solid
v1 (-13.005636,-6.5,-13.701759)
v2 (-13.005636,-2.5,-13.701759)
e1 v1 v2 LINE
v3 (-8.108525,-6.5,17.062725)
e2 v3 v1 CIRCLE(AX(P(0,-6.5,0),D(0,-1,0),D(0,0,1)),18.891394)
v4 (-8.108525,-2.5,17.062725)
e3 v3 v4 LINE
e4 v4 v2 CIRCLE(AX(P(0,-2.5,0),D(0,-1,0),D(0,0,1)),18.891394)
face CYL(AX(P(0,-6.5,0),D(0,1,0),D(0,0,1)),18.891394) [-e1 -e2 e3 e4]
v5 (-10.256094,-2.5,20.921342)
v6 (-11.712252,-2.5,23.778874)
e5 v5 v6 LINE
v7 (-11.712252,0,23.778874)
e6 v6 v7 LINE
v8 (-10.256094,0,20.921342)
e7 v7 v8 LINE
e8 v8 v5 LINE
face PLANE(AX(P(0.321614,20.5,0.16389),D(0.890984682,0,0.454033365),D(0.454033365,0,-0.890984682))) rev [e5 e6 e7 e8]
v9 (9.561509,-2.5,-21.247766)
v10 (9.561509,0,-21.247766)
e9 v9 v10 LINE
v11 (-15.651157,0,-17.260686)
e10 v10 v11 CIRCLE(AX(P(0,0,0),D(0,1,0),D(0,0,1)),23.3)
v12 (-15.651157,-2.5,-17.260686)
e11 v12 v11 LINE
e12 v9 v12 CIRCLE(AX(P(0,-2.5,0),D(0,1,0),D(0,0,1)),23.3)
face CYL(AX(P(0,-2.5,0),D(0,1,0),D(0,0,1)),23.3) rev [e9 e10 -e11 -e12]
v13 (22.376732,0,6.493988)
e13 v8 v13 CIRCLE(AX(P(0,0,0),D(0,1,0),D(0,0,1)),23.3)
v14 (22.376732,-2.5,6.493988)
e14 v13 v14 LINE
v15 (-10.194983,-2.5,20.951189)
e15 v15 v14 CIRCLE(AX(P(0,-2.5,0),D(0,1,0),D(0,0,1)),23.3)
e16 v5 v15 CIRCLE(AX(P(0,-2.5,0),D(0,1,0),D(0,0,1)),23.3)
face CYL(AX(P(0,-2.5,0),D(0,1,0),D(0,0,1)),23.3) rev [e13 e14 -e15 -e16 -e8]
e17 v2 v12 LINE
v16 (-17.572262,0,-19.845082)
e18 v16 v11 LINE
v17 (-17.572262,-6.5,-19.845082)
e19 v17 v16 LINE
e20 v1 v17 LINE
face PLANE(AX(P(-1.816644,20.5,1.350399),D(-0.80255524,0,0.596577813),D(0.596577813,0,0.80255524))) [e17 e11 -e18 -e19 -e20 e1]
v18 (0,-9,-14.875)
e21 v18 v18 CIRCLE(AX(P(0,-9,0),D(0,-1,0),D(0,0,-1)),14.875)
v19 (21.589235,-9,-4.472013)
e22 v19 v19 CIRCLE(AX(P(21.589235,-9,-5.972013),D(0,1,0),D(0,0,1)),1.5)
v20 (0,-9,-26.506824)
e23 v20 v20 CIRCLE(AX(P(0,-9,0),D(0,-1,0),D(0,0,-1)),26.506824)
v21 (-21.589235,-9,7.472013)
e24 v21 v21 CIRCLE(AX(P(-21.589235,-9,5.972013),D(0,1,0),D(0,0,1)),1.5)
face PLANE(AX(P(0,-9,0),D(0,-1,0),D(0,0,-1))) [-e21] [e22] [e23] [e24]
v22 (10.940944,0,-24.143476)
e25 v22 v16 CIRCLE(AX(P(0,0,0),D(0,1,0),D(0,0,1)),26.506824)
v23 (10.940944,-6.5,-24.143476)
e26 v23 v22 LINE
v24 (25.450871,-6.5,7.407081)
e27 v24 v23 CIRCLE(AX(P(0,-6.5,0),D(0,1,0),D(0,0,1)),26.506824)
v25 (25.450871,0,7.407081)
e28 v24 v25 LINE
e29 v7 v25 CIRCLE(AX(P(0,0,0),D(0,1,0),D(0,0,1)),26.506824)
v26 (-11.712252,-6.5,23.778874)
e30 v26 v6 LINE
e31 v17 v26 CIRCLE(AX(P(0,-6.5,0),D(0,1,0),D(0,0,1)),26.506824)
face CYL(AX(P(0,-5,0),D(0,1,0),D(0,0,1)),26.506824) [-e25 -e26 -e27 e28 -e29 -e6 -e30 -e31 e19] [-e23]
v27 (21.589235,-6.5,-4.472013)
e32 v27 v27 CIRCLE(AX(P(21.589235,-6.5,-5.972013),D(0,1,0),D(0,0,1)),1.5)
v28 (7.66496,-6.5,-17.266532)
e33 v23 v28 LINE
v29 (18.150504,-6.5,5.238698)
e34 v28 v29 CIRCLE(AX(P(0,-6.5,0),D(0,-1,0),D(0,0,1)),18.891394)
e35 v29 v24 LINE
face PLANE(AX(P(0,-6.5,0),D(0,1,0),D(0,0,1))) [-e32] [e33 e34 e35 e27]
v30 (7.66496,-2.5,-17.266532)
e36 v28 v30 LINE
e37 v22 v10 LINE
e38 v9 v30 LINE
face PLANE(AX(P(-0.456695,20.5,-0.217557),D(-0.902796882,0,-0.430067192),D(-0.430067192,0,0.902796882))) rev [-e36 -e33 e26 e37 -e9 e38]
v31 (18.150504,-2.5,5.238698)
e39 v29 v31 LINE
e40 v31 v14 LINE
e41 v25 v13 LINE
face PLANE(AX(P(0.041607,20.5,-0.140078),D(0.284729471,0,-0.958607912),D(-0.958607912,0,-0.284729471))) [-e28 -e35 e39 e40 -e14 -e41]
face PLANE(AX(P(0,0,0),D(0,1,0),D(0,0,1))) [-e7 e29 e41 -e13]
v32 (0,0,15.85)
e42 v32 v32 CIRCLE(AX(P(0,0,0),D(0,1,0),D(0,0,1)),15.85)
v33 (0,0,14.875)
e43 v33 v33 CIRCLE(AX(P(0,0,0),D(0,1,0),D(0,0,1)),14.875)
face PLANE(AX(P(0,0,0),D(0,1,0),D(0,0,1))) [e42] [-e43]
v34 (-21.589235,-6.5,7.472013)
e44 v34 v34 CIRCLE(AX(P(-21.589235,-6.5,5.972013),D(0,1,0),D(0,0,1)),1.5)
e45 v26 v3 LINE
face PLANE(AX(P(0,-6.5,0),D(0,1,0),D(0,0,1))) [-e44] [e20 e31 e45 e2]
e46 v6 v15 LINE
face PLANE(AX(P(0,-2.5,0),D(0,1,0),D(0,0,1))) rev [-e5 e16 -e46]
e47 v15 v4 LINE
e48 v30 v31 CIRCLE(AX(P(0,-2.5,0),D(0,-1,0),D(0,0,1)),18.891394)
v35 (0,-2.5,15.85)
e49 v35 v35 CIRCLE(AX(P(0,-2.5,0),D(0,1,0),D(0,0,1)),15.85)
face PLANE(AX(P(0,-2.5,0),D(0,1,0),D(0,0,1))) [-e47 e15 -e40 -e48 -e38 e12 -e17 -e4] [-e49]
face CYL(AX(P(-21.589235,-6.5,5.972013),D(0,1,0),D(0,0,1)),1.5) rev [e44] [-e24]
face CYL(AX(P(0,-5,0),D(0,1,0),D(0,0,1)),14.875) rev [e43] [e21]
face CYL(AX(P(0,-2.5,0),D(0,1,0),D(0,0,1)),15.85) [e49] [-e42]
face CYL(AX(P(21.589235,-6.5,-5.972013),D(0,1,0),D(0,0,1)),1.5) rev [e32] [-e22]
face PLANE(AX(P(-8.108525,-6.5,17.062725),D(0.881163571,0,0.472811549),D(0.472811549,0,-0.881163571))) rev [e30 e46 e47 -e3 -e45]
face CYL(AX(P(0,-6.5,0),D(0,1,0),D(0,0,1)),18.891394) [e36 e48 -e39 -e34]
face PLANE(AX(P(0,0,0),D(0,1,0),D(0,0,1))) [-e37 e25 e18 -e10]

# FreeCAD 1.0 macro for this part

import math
import FreeCAD as App
import Part
import Sketcher

V = App.Vector
Q = App.Units.Quantity

doc = App.newDocument("Part")
params = doc.addObject("Spreadsheet::Sheet", "Params")
for row, (alias, value) in enumerate([
    ("sketch1_diameter", "29.75 mm"),
    ("pad1_length", "5 mm"),
    ("sketch2_diameter", "46.6 mm"),
    ("sketch2_diameter2", "31.7 mm"),
    ("pocket1_length", "2.5 mm"),
    ("pad2_length", "50 mm"),
    ("pocket2_length", "46 mm"),
    ("sketch5_radius", "23.3 mm"),
    ("pocket3_length", "23 mm"),
    ("pocket4_length", "4 mm"),
    ("sketch7_diameter", "29.75 mm"),
    ("pocket5_length", "10 mm"),
    ("sketch8_diameter", "3 mm"),
    ("hole_diameter", "3 mm"),
], start=1):
    params.set(f"A{row}", alias)
    params.set(f"B{row}", "=" + value)
    params.setAlias(f"B{row}", alias)

body = doc.addObject("PartDesign::Body", "Body")

# Sketch on XZ plane
sketch1 = body.newObject("Sketcher::SketchObject", "Sketch")
sketch1.AttachmentSupport = (doc.getObject("XZ_Plane"), [""])
sketch1.MapMode = "FlatFace"
sketch1.addGeometry([
    Part.Circle(V(0, 0, 0), V(0, 0, 1), 27),
    Part.Circle(V(0, 0, 0), V(0, 0, 1), 15),
], False)
sketch1.addConstraint([
    Sketcher.Constraint("Coincident", 0, 3, -1, 1),
    Sketcher.Constraint("Coincident", 1, 3, -1, 1),
    Sketcher.Constraint("Diameter", 1, Q("29.75 mm")),
    Sketcher.Constraint("Diameter", 0, Q("53.013647 mm")),
])
sketch1.setExpression("Constraints[2]", "Params.sketch1_diameter")
pad1 = body.newObject("PartDesign::Pad", "Pad")
pad1.Profile = sketch1
pad1.setExpression("Length", "Params.pad1_length")

# Sketch on XZ plane
sketch2 = body.newObject("Sketcher::SketchObject", "Sketch001")
sketch2.AttachmentSupport = (doc.getObject("XZ_Plane"), [""])
sketch2.MapMode = "FlatFace"
sketch2.addGeometry([
    Part.Circle(V(0, 0, 0), V(0, 0, 1), 23),
    Part.Circle(V(0, 0, 0), V(0, 0, 1), 16),
], False)
sketch2.addConstraint([
    Sketcher.Constraint("Coincident", 0, 3, -1, 1),
    Sketcher.Constraint("Coincident", 1, 3, -1, 1),
    Sketcher.Constraint("Diameter", 0, Q("46.6 mm")),
    Sketcher.Constraint("Diameter", 1, Q("31.7 mm")),
])
sketch2.setExpression("Constraints[2]", "Params.sketch2_diameter")
sketch2.setExpression("Constraints[3]", "Params.sketch2_diameter2")
pocket1 = body.newObject("PartDesign::Pocket", "Pocket")
pocket1.Profile = sketch2
pocket1.setExpression("Length", "Params.pocket1_length")
pocket1.Reversed = True

# Sketch on XZ plane
sketch3 = body.newObject("Sketcher::SketchObject", "Sketch002")
sketch3.AttachmentSupport = (doc.getObject("XZ_Plane"), [""])
sketch3.MapMode = "FlatFace"
sketch3.AttachmentOffset = App.Placement(V(0, 0, 5), App.Rotation())
sketch3.addGeometry(Part.Circle(V(0, 0, 0), V(0, 0, 1), 27), False)
sketch3.addConstraint([
    Sketcher.Constraint("Coincident", 0, 3, -1, 1),
    Sketcher.Constraint("Diameter", 0, Q("53.013647 mm")),
])
pad2 = body.newObject("PartDesign::Pad", "Pad001")
pad2.Profile = sketch3
pad2.setExpression("Length", "Params.pad2_length")

# Sketch on XZ plane
sketch4 = body.newObject("Sketcher::SketchObject", "Sketch003")
sketch4.AttachmentSupport = (doc.getObject("XZ_Plane"), [""])
sketch4.MapMode = "FlatFace"
sketch4.AttachmentOffset = App.Placement(V(0, 0, 9), App.Rotation())
sketch4.addGeometry(Part.Circle(V(0, 0, 0), V(0, 0, 1), 27), False)
sketch4.addConstraint([
    Sketcher.Constraint("Coincident", 0, 3, -1, 1),
    Sketcher.Constraint("Diameter", 0, Q("53.013647 mm")),
])
pocket2 = body.newObject("PartDesign::Pocket", "Pocket001")
pocket2.Profile = sketch4
pocket2.setExpression("Length", "Params.pocket2_length")
pocket2.Reversed = True

# Sketch on XZ plane
sketch5 = body.newObject("Sketcher::SketchObject", "Sketch004")
sketch5.AttachmentSupport = (doc.getObject("XZ_Plane"), [""])
sketch5.MapMode = "FlatFace"
sketch5.AttachmentOffset = App.Placement(V(0, 0, -20.5), App.Rotation())
sketch5.addGeometry([
    Part.LineSegment(V(-12.2, 24.8, 0), V(-10.3, 20.9, 0)),  # 0
    Part.ArcOfCircle(Part.Circle(V(0, 0, 0), V(0, 0, 1), 23.3), math.radians(116), math.radians(228)),  # 1
    Part.LineSegment(V(-15.7, -17.3, 0), V(-18.4, -20.9, 0)),  # 2
    Part.ArcOfCircle(Part.Circle(V(0.4, -0.2, 0), V(0, 0, 1), 28), math.radians(117), math.radians(228)),  # 3
    Part.ArcOfCircle(Part.Circle(V(0, 0, 0), V(0, 0, 1), 23.3), math.radians(-66), math.radians(16)),  # 4
    Part.LineSegment(V(22.4, 6.5, 0), V(27.2, 7.9, 0)),  # 5
    Part.ArcOfCircle(Part.Circle(V(0.4, -0.2, 0), V(0, 0, 1), 28), math.radians(-66), math.radians(17)),  # 6
    Part.LineSegment(V(11.7, -25.8, 0), V(9.6, -21.2, 0)),  # 7
], False)
sketch5.addConstraint([
    Sketcher.Constraint("Coincident", 0, 2, 1, 1),
    Sketcher.Constraint("Coincident", 1, 2, 2, 1),
    Sketcher.Constraint("Coincident", 2, 2, 3, 2),
    Sketcher.Constraint("Coincident", 3, 1, 0, 1),
    Sketcher.Constraint("Coincident", 4, 2, 5, 1),
    Sketcher.Constraint("Coincident", 5, 2, 6, 2),
    Sketcher.Constraint("Coincident", 6, 1, 7, 1),
    Sketcher.Constraint("Coincident", 7, 2, 4, 1),
    Sketcher.Constraint("Coincident", 1, 3, -1, 1),
    Sketcher.Constraint("Coincident", 4, 3, -1, 1),
    Sketcher.Constraint("Coincident", 6, 3, 3, 3),
    Sketcher.Constraint("Equal", 1, 4),
    Sketcher.Constraint("Equal", 3, 6),
    Sketcher.Constraint("Radius", 1, Q("23.3 mm")),
    Sketcher.Constraint("Radius", 3, Q("27.984744 mm")),
    Sketcher.Constraint("Distance", 2, Q("4.535678 mm")),
    Sketcher.Constraint("Distance", 5, Q("5.062878 mm")),
    Sketcher.Constraint("DistanceY", -1, 1, 0, 2, Q("20.921342 mm")),
    Sketcher.Constraint("DistanceX", 2, 2, -1, 1, Q("18.357042 mm")),
    Sketcher.Constraint("DistanceY", 2, 2, -1, 1, Q("20.900818 mm")),
    Sketcher.Constraint("DistanceX", -1, 1, 4, 2, Q("22.376732 mm")),
    Sketcher.Constraint("DistanceY", -1, 1, 5, 2, Q("7.935539 mm")),
    Sketcher.Constraint("DistanceX", -1, 1, 7, 2, Q("9.561509 mm")),
    Sketcher.Constraint("DistanceX", 3, 1, 0, 2, Q("1.96575 mm")),
    Sketcher.Constraint("DistanceX", 6, 3, 6, 1, Q("11.277331 mm")),
])
sketch5.setExpression("Constraints[13]", "Params.sketch5_radius")
pocket3 = body.newObject("PartDesign::Pocket", "Pocket002")
pocket3.Profile = sketch5
pocket3.setExpression("Length", "Params.pocket3_length")
pocket3.Reversed = True

# Sketch on XZ plane
sketch6 = body.newObject("Sketcher::SketchObject", "Sketch005")
sketch6.AttachmentSupport = (doc.getObject("XZ_Plane"), [""])
sketch6.MapMode = "FlatFace"
sketch6.AttachmentOffset = App.Placement(V(0, 0, 2.5), App.Rotation())
sketch6.addGeometry([
    Part.LineSegment(V(-13, -14, 0), V(-18, -20, 0)),  # 0
    Part.ArcOfCircle(Part.Circle(V(0, 0, 0), V(0, 0, 1), 27), math.radians(116), math.radians(228)),  # 1
    Part.LineSegment(V(-12, 24, 0), V(-8, 17, 0)),  # 2
    Part.ArcOfCircle(Part.Circle(V(0, 0, 0), V(0, 0, 1), 19), math.radians(115), math.radians(226)),  # 3
    Part.LineSegment(V(11, -24, 0), V(8, -17, 0)),  # 4
    Part.ArcOfCircle(Part.Circle(V(0, 0, 0), V(0, 0, 1), 19), math.radians(-66), math.radians(16)),  # 5
    Part.LineSegment(V(18, 5, 0), V(25, 7, 0)),  # 6
    Part.ArcOfCircle(Part.Circle(V(0, 0, 0), V(0, 0, 1), 27), math.radians(-66), math.radians(16)),  # 7
], False)
sketch6.addConstraint([
    Sketcher.Constraint("Coincident", 0, 2, 1, 2),
    Sketcher.Constraint("Coincident", 1, 1, 2, 1),
    Sketcher.Constraint("Coincident", 2, 2, 3, 1),
    Sketcher.Constraint("Coincident", 3, 2, 0, 1),
    Sketcher.Constraint("Coincident", 4, 2, 5, 1),
    Sketcher.Constraint("Coincident", 5, 2, 6, 1),
    Sketcher.Constraint("Coincident", 6, 2, 7, 2),
    Sketcher.Constraint("Coincident", 7, 1, 4, 1),
    Sketcher.Constraint("Coincident", 1, 3, -1, 1),
    Sketcher.Constraint("Coincident", 3, 3, -1, 1),
    Sketcher.Constraint("Coincident", 5, 3, -1, 1),
    Sketcher.Constraint("Coincident", 7, 3, -1, 1),
    Sketcher.Constraint("Equal", 3, 5),
    Sketcher.Constraint("Equal", 1, 7),
    Sketcher.Constraint("Radius", 1, Q("26.506824 mm")),
    Sketcher.Constraint("Radius", 3, Q("18.891394 mm")),
    Sketcher.Constraint("Distance", 2, Q("7.62191 mm")),
    Sketcher.Constraint("DistanceY", 3, 2, -1, 1, Q("13.701759 mm")),
    Sketcher.Constraint("DistanceX", -1, 1, 4, 2, Q("7.66496 mm")),
    Sketcher.Constraint("DistanceX", -1, 1, 6, 2, Q("25.450871 mm")),
    Sketcher.Constraint("DistanceX", 0, 2, 1, 1, Q("5.86001 mm")),
    Sketcher.Constraint("DistanceY", 2, 2, 1, 1, Q("6.716149 mm")),
    Sketcher.Constraint("DistanceY", 4, 2, 5, 2, Q("22.50523 mm")),
    Sketcher.Constraint("DistanceX", 3, 2, 7, 1, Q("23.94658 mm")),
])
pocket4 = body.newObject("PartDesign::Pocket", "Pocket003")
pocket4.Profile = sketch6
pocket4.setExpression("Length", "Params.pocket4_length")
pocket4.Reversed = True

# Sketch on XZ plane
sketch7 = body.newObject("Sketcher::SketchObject", "Sketch006")
sketch7.AttachmentSupport = (doc.getObject("XZ_Plane"), [""])
sketch7.MapMode = "FlatFace"
sketch7.AttachmentOffset = App.Placement(V(0, 0, 5), App.Rotation())
sketch7.addGeometry(Part.Circle(V(0, 0, 0), V(0, 0, 1), 15), False)
sketch7.addConstraint([
    Sketcher.Constraint("Coincident", 0, 3, -1, 1),
    Sketcher.Constraint("Diameter", 0, Q("29.75 mm")),
])
sketch7.setExpression("Constraints[1]", "Params.sketch7_diameter")
pocket5 = body.newObject("PartDesign::Pocket", "Pocket004")
pocket5.Profile = sketch7
pocket5.setExpression("Length", "Params.pocket5_length")
pocket5.Reversed = True

# Sketch on XZ plane
sketch8 = body.newObject("Sketcher::SketchObject", "Sketch007")
sketch8.AttachmentSupport = (doc.getObject("XZ_Plane"), [""])
sketch8.MapMode = "FlatFace"
sketch8.AttachmentOffset = App.Placement(V(0, 0, 6.5), App.Rotation())
sketch8.addGeometry([
    Part.Circle(V(-21.6, 6, 0), V(0, 0, 1), 1.5),
    Part.Circle(V(21.6, -6, 0), V(0, 0, 1), 1.5),
], False)
sketch8.addConstraint([
    Sketcher.Constraint("Equal", 0, 1),
    Sketcher.Constraint("Symmetric", 0, 3, 1, 3, -1, 1),
    Sketcher.Constraint("Diameter", 0, Q("3 mm")),
    Sketcher.Constraint("DistanceX", 0, 3, 1, 3, Q("43.17847 mm")),
    Sketcher.Constraint("DistanceY", -1, 1, 0, 3, Q("5.972013 mm")),
])
sketch8.setExpression("Constraints[2]", "Params.sketch8_diameter")
doc.recompute()
hole = body.newObject("PartDesign::Hole", "Hole")
hole.Profile = sketch8
hole.ThreadType = "None"
hole.setExpression("Diameter", "Params.hole_diameter")
hole.DepthType = "ThroughAll"
hole.Reversed = True

doc.recompute()
